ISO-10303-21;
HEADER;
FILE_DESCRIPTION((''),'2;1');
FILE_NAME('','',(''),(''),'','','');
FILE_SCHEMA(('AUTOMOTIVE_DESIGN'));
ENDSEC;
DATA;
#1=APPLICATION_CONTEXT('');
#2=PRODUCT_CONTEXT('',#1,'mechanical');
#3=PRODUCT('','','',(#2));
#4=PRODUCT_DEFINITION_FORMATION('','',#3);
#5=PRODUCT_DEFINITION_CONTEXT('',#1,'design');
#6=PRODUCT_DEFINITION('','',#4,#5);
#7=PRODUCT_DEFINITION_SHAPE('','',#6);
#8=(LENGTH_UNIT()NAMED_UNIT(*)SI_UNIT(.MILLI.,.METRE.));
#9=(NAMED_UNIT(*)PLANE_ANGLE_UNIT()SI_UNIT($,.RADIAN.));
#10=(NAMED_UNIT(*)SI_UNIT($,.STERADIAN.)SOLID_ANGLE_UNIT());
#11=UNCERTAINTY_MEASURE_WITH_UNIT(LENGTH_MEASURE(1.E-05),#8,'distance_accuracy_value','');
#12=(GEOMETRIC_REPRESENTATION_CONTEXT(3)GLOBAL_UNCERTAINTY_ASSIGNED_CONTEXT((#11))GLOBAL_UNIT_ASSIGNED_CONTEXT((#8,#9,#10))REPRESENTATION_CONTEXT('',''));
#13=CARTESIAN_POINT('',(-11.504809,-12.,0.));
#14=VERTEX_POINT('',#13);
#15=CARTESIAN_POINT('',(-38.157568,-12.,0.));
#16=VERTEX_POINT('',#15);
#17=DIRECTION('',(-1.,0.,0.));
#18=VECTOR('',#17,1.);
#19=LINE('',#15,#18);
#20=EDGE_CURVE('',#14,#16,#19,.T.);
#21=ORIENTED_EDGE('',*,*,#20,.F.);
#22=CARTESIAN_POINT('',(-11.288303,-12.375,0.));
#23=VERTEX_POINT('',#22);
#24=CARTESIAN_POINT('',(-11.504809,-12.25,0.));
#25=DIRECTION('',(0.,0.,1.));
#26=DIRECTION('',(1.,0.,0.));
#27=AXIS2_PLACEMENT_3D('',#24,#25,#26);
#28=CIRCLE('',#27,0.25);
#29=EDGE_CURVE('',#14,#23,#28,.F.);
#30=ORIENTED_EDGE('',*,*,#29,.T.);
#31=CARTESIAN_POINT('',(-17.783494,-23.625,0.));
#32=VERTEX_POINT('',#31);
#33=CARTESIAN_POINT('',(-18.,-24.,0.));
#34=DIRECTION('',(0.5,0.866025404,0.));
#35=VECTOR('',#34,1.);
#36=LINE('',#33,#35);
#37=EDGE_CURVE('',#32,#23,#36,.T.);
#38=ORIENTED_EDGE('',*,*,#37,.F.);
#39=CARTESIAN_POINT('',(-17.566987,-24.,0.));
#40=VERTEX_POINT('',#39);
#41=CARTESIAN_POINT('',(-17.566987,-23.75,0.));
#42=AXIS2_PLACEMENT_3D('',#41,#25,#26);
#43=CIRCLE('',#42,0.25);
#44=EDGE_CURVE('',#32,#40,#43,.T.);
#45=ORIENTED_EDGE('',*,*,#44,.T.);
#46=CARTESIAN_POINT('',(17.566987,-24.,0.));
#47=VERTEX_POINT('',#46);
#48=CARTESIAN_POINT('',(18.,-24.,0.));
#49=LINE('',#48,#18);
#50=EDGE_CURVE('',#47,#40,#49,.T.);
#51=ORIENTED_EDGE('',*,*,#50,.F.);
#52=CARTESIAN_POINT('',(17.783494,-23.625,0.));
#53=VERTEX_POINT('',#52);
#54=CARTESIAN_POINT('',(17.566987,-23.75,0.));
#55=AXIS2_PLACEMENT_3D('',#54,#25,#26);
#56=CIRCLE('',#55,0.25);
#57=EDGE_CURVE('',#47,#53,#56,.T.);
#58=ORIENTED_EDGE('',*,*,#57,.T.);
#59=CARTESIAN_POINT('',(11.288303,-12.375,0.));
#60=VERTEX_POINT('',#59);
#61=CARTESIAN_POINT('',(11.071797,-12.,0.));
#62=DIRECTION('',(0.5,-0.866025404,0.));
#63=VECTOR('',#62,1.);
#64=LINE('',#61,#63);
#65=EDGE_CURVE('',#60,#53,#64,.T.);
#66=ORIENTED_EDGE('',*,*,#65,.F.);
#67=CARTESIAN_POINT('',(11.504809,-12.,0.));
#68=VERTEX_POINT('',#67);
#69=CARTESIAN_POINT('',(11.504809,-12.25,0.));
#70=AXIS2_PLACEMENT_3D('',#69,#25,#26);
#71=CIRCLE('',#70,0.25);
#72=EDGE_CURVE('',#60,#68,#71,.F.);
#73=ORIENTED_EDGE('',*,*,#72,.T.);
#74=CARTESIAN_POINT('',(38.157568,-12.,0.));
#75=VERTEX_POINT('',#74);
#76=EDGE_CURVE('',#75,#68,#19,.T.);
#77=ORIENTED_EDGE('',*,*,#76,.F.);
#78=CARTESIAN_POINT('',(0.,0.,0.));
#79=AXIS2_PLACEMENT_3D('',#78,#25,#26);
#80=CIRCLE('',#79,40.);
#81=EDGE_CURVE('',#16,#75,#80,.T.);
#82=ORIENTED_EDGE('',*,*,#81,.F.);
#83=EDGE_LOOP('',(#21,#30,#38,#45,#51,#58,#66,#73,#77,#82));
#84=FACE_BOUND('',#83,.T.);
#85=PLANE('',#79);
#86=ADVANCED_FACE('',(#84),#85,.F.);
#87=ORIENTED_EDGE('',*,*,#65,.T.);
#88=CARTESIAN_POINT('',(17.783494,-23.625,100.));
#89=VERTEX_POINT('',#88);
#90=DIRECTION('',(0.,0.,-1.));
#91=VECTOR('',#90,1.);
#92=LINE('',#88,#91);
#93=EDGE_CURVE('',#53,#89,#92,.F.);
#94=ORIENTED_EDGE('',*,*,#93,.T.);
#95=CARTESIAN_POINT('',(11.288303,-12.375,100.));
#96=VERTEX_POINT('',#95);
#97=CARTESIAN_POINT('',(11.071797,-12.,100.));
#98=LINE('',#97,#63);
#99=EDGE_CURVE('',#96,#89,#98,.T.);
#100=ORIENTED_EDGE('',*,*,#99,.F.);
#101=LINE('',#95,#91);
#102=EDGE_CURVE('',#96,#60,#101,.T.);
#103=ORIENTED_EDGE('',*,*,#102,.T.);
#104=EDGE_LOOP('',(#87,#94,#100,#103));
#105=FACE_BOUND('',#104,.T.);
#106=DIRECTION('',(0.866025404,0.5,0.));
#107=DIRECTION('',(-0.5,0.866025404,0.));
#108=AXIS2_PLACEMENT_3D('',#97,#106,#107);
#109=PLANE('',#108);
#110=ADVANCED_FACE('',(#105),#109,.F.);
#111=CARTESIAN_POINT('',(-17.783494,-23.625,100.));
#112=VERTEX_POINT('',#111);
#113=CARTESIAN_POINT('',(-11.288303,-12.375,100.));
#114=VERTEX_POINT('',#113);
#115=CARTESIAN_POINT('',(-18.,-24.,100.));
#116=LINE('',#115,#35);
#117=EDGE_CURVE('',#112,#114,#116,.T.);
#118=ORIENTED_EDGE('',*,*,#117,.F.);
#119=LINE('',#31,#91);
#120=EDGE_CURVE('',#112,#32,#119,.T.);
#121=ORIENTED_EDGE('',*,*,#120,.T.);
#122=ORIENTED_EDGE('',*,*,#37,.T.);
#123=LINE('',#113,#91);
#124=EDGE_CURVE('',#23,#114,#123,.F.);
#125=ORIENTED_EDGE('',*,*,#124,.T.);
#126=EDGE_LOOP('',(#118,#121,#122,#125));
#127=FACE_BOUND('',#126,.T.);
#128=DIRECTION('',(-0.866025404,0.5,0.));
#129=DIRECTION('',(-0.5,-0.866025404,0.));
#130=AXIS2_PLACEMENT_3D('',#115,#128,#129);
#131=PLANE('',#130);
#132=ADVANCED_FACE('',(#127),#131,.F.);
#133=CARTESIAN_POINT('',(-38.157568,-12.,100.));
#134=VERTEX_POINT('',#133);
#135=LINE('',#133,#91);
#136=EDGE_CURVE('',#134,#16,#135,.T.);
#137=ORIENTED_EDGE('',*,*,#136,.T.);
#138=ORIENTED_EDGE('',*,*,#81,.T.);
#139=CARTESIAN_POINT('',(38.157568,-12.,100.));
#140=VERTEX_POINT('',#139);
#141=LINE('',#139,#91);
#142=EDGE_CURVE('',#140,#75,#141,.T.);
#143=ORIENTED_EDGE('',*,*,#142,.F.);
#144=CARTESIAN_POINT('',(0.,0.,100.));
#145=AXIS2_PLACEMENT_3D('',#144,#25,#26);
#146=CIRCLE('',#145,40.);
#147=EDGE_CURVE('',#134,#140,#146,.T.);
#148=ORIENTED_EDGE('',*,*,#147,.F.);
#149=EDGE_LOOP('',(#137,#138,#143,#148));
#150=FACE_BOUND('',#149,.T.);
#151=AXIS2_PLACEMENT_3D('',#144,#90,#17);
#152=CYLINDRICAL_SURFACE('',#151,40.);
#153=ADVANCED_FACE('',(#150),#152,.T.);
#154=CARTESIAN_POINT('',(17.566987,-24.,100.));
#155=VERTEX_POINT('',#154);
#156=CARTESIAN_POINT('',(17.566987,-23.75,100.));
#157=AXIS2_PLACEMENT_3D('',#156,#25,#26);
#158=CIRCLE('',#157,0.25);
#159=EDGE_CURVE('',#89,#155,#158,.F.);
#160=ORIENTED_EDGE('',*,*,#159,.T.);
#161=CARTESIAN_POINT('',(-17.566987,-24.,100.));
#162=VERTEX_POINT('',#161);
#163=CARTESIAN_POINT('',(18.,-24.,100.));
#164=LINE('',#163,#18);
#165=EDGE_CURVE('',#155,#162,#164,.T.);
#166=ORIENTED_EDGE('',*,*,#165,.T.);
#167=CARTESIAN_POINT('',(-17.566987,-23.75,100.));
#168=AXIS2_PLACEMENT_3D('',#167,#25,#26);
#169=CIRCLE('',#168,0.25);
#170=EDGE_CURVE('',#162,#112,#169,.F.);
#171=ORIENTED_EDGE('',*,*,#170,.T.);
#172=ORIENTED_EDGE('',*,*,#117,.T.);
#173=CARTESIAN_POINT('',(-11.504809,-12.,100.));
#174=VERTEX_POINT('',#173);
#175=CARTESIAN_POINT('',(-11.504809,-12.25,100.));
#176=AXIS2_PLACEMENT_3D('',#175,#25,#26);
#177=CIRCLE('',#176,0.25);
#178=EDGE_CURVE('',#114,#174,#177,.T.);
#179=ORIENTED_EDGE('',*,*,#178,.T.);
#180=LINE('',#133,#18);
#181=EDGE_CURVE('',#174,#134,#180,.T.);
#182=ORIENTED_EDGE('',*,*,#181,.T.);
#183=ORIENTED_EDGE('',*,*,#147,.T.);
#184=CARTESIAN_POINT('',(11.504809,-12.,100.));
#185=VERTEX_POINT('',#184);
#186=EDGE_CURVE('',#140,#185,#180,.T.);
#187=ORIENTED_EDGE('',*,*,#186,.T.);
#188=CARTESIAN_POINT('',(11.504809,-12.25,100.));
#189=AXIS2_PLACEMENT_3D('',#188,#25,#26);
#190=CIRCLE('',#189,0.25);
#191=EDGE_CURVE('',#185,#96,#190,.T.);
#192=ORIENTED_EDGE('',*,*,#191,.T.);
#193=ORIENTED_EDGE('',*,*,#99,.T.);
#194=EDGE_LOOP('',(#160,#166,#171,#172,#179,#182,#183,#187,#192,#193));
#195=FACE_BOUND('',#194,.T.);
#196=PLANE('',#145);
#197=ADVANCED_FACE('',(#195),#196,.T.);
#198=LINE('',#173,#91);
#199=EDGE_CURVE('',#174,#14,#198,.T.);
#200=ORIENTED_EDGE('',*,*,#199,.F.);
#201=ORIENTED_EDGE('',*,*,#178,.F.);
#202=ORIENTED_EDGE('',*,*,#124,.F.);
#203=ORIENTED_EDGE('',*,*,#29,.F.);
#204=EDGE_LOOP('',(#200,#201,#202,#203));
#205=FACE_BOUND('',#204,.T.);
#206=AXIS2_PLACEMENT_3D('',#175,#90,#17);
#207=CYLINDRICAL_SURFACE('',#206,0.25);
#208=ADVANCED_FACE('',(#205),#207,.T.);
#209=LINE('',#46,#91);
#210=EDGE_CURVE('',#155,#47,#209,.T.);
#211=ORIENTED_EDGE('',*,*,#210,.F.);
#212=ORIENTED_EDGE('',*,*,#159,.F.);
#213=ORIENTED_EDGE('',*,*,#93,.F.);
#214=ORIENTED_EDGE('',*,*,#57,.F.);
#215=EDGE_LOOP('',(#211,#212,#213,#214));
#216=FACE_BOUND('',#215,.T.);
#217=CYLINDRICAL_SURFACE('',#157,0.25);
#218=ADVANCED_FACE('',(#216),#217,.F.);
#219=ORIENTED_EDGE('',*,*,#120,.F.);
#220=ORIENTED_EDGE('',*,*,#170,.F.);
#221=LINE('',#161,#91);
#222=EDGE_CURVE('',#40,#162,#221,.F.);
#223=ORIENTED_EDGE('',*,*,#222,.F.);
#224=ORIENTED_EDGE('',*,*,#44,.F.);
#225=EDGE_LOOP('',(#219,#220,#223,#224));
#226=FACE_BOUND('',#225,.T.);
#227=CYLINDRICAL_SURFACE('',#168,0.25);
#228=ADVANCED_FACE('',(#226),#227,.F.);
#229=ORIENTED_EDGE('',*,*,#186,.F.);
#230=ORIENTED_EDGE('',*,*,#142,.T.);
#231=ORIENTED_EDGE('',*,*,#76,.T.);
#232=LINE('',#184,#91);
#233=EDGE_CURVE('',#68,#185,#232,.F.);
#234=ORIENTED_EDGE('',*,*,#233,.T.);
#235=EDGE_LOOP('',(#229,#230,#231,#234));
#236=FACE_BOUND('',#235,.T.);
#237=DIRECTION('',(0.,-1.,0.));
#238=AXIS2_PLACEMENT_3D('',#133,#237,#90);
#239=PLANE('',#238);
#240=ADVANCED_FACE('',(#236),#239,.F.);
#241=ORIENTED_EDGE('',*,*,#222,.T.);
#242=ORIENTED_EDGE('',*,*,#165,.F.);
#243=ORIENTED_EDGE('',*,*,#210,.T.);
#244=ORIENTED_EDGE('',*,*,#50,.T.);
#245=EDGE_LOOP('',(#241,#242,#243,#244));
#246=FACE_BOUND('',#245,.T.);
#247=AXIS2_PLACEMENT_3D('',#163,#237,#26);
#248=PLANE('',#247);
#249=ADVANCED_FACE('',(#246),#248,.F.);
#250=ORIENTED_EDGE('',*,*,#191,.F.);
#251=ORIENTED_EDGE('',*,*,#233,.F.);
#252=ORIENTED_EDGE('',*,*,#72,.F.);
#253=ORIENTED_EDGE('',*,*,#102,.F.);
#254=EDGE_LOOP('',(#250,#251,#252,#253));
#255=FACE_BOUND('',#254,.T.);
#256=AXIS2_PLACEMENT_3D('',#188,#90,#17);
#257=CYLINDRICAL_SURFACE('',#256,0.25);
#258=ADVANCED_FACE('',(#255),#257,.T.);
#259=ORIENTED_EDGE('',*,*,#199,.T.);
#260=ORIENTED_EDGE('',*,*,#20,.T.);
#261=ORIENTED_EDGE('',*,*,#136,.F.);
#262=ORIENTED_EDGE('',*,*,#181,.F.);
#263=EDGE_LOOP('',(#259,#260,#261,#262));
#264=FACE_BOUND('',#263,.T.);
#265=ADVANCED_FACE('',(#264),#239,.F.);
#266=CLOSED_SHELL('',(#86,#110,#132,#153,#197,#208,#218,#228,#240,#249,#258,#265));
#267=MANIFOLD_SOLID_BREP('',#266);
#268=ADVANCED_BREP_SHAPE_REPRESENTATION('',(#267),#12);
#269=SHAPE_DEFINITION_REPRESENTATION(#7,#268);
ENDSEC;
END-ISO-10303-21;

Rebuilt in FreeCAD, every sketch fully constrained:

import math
import FreeCAD as App
import Part
import Sketcher

V = App.Vector
Q = App.Units.Quantity


def edges_at(feature, points):
    """Names of the edges that pass closest to the given points."""
    edges = feature.Shape.Edges
    near = lambda p: min(range(len(edges)), key=lambda i: edges[i].distToShape(Part.Vertex(*p))[0])
    return sorted({f"Edge{near(p) + 1}" for p in points})

doc = App.newDocument("Part")
params = doc.addObject("Spreadsheet::Sheet", "Params")
for row, (alias, value) in enumerate([
    ("sketch1_radius", "40 mm"),
    ("pad1_length", "100 mm"),
    ("sketch2_width", "36 mm"),
    ("fillet_radius", "0.25 mm"),
], start=1):
    params.set(f"A{row}", alias)
    params.set(f"B{row}", "=" + value)
    params.setAlias(f"B{row}", alias)

body = doc.addObject("PartDesign::Body", "Body")

sketch1 = body.newObject("Sketcher::SketchObject", "Sketch")
sketch1.AttachmentSupport = (doc.getObject("XY_Plane"), [""])
sketch1.MapMode = "FlatFace"
sketch1.addGeometry(Part.LineSegment(V(38, -12, 0), V(-38, -12, 0)), False)
sketch1.addGeometry(Part.ArcOfCircle(Part.Circle(V(0, 0, 0), V(0, 0, 1), 40), math.radians(-163), math.radians(-17)), False)
sketch1.addConstraint(Sketcher.Constraint("Coincident", 0, 1, 1, 2))
sketch1.addConstraint(Sketcher.Constraint("Coincident", 1, 1, 0, 2))
sketch1.addConstraint(Sketcher.Constraint("Horizontal", 0))
sketch1.addConstraint(Sketcher.Constraint("Coincident", 1, 3, -1, 1))
sketch1.addConstraint(Sketcher.Constraint("Radius", 1, Q("40 mm")))
sketch1.addConstraint(Sketcher.Constraint("DistanceY", 0, 1, -1, 1, Q("12 mm")))
sketch1.setExpression("Constraints[4]", "Params.sketch1_radius")
pad1 = body.newObject("PartDesign::Pad", "Pad")
pad1.Profile = sketch1
pad1.setExpression("Length", "Params.pad1_length")

sketch2 = body.newObject("Sketcher::SketchObject", "Sketch001")
sketch2.AttachmentSupport = (doc.getObject("XY_Plane"), [""])
sketch2.MapMode = "FlatFace"
sketch2.addGeometry(Part.LineSegment(V(11.071797, -12, 0), V(18, -24, 0)), False)
sketch2.addGeometry(Part.LineSegment(V(18, -24, 0), V(-18, -24, 0)), False)
sketch2.addGeometry(Part.LineSegment(V(-18, -24, 0), V(-11.071797, -12, 0)), False)
sketch2.addGeometry(Part.LineSegment(V(-11.071797, -12, 0), V(11.071797, -12, 0)), False)
sketch2.addConstraint(Sketcher.Constraint("Coincident", 0, 2, 1, 1))
sketch2.addConstraint(Sketcher.Constraint("Coincident", 1, 2, 2, 1))
sketch2.addConstraint(Sketcher.Constraint("Coincident", 2, 2, 3, 1))
sketch2.addConstraint(Sketcher.Constraint("Coincident", 3, 2, 0, 1))
sketch2.addConstraint(Sketcher.Constraint("Horizontal", 1))
sketch2.addConstraint(Sketcher.Constraint("Horizontal", 3))
sketch2.addConstraint(Sketcher.Constraint("Equal", 0, 2))
sketch2.addConstraint(Sketcher.Constraint("DistanceX", 1, 2, 1, 1, Q("36 mm")))
sketch2.addConstraint(Sketcher.Constraint("Angle", 0, Q("-60 deg")))
sketch2.addConstraint(Sketcher.Constraint("DistanceX", -1, 1, 0, 2, Q("18 mm")))
sketch2.addConstraint(Sketcher.Constraint("DistanceY", 0, 2, -1, 1, Q("24 mm")))
sketch2.addConstraint(Sketcher.Constraint("DistanceY", 2, 2, -1, 1, Q("12 mm")))
sketch2.setExpression("Constraints[7]", "Params.sketch2_width")
pocket1 = body.newObject("PartDesign::Pocket", "Pocket")
pocket1.Profile = sketch2
pocket1.Type = "ThroughAll"
pocket1.Reversed = True
doc.recompute()

fillet = body.newObject("PartDesign::Fillet", "Fillet")
fillet.Base = (pocket1, edges_at(pocket1, [
    (11.072, -12, 50),
    (-11.072, -12, 50),
    (-18, -24, 50),
    (18, -24, 50),
]))
fillet.setExpression("Radius", "Params.fillet_radius")

doc.recompute()
